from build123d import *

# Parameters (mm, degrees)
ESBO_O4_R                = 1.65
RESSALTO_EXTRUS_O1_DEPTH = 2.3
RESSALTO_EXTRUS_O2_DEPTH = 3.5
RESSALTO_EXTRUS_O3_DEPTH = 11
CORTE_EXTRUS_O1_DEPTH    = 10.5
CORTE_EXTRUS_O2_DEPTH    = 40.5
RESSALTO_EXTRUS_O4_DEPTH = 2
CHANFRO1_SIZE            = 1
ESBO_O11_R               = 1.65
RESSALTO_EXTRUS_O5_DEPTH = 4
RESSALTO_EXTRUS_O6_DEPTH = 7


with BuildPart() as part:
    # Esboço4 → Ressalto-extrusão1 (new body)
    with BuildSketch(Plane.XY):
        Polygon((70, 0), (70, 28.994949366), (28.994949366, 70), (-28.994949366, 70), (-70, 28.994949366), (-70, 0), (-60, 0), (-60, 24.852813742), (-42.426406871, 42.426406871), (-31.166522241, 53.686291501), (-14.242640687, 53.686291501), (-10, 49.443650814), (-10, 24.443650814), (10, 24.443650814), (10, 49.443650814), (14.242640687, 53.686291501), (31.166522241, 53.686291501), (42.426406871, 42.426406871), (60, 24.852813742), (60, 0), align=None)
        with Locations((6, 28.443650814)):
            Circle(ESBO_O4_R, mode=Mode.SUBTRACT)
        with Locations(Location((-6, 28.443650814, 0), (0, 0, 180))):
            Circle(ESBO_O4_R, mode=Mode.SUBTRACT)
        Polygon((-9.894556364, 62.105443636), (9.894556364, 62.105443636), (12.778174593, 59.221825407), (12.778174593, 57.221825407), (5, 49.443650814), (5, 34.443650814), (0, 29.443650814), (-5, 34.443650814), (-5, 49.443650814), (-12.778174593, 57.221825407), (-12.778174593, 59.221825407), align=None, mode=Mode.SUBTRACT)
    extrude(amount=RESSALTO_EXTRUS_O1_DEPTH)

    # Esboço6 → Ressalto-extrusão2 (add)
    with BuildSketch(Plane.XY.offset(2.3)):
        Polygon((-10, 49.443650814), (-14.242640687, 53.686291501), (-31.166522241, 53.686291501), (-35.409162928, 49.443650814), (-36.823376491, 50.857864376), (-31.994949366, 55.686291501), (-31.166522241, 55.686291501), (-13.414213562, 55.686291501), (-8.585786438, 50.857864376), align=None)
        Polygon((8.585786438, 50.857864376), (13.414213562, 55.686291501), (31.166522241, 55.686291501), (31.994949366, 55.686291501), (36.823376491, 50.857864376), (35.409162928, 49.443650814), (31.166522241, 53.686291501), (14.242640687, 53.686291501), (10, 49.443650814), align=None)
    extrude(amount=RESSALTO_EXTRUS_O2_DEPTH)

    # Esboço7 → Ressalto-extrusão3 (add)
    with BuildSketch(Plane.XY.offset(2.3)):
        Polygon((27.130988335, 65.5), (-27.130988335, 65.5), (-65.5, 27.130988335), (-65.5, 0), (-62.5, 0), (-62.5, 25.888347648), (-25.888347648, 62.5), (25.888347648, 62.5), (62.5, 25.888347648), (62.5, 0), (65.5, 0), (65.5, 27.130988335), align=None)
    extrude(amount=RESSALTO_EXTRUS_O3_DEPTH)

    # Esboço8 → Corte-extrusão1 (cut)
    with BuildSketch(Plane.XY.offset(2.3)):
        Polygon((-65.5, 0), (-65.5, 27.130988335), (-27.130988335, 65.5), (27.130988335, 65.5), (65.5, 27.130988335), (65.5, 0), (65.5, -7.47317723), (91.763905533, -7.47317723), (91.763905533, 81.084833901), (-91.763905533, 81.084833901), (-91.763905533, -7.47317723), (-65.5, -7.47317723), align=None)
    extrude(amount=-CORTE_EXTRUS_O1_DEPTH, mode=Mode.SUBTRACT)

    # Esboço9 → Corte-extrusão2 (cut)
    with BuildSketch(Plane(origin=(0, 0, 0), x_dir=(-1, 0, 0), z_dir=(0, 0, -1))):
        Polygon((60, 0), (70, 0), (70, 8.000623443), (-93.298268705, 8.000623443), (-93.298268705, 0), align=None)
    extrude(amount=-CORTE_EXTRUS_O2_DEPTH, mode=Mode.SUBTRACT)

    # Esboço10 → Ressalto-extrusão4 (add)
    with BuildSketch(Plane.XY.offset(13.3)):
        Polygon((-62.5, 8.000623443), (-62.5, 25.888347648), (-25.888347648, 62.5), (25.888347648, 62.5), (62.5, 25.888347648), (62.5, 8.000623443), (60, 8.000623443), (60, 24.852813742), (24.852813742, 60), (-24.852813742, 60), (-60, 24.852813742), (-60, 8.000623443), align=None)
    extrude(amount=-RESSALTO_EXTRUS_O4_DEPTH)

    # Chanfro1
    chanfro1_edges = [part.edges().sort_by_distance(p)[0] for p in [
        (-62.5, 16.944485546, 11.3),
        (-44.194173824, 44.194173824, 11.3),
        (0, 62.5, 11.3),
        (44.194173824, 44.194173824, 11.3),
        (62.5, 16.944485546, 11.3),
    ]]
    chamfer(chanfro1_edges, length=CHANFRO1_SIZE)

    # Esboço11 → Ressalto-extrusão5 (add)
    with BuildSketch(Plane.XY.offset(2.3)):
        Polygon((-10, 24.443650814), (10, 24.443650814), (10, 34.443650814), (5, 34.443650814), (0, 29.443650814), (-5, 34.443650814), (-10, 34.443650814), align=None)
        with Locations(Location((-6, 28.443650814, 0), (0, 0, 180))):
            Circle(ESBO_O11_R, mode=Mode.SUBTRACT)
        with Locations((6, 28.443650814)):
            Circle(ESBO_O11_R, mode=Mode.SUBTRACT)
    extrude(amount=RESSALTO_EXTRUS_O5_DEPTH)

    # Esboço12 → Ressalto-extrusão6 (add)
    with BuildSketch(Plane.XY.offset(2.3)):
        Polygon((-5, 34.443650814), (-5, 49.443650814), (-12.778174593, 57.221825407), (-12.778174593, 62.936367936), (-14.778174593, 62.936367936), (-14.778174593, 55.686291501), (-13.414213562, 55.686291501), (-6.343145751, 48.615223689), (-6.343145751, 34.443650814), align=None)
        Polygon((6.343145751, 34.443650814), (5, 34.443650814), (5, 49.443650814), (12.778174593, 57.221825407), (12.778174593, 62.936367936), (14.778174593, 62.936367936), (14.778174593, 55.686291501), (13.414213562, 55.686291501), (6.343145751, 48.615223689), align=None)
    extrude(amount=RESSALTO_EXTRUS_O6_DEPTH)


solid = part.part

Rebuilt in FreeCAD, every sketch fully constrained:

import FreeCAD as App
import Part
import Sketcher


def edges_at(feature, points):
    """Names of the edges that pass closest to the given points."""
    edges = feature.Shape.Edges
    near = lambda p: min(range(len(edges)), key=lambda i: edges[i].distToShape(Part.Vertex(*p))[0])
    return sorted({f"Edge{near(p) + 1}" for p in points})


def add_polygon(sketch, points):
    """Adds a closed chain of lines whose ends are joined by coincident constraints."""
    first, n = sketch.GeometryCount, len(points)
    for a, b in zip(points, points[1:] + points[:1]):
        sketch.addGeometry(Part.LineSegment(App.Vector(*a, 0), App.Vector(*b, 0)), False)
    for i in range(n):
        sketch.addConstraint(Sketcher.Constraint("Coincident", first + i, 2, first + (i + 1) % n, 1))

doc = App.newDocument("Part")
params = doc.addObject("Spreadsheet::Sheet", "Params")
for row, (alias, value) in enumerate([
    ("sketch1_diameter", "3.3 mm"),
    ("sketch1_width", "10 mm"),
    ("sketch1_width2", "20 mm"),
    ("sketch1_height", "25 mm"),
    ("sketch1_height2", "2 mm"),
    ("pad1_length", "2.3 mm"),
    ("sketch2_length", "6 mm"),
    ("sketch2_length2", "2 mm"),
    ("pad2_length", "3.5 mm"),
    ("sketch3_width", "3 mm"),
    ("pad3_length", "11 mm"),
    ("pocket1_length", "10.5 mm"),
    ("pocket2_length", "40.5 mm"),
    ("sketch6_width", "2.5 mm"),
    ("pad4_length", "2 mm"),
    ("chamfer_size", "1 mm"),
    ("sketch7_diameter", "3.3 mm"),
    ("sketch7_width", "20 mm"),
    ("sketch7_width2", "5 mm"),
    ("sketch7_height", "10 mm"),
    ("pad5_length", "4 mm"),
    ("sketch8_width", "2 mm"),
    ("sketch8_height", "15 mm"),
    ("sketch8_length", "11 mm"),
    ("sketch8_length2", "10 mm"),
    ("pad6_length", "7 mm"),
], start=1):
    params.set(f"A{row}", alias)
    params.set(f"B{row}", "=" + value)
    params.setAlias(f"B{row}", alias)

body = doc.addObject("PartDesign::Body", "Body")

sketch1 = doc.addObject("Sketcher::SketchObject", "Sketch")
body.addObject(sketch1)
sketch1.AttachmentSupport = (doc.XY_Plane, [""])
sketch1.MapMode = "FlatFace"
add_polygon(sketch1, [(70, 0), (70, 28.994949), (28.994949, 70), (-28.994949, 70), (-70, 28.994949), (-70, 0), (-60, 0), (-60, 24.852814), (-31.166522, 53.686292), (-14.242641, 53.686292), (-10, 49.443651), (-10, 24.443651), (10, 24.443651), (10, 49.443651), (14.242641, 53.686292), (31.166522, 53.686292), (60, 24.852814), (60, 0)])
sketch1.addGeometry(Part.Circle(App.Vector(-6, 28.443651, 0), App.Vector(0, 0, 1), 1.65), False)
sketch1.addGeometry(Part.Circle(App.Vector(6, 28.443651, 0), App.Vector(0, 0, 1), 1.65), False)
add_polygon(sketch1, [(-12.778175, 59.221825), (-9.894556, 62.105444), (9.894556, 62.105444), (12.778175, 59.221825), (12.778175, 57.221825), (5, 49.443651), (5, 34.443651), (0, 29.443651), (-5, 34.443651), (-5, 49.443651), (-12.778175, 57.221825)])
sketch1.addConstraint([
    Sketcher.Constraint("Vertical", 0),
    Sketcher.Constraint("Horizontal", 2),
    Sketcher.Constraint("Vertical", 4),
    Sketcher.Constraint("Horizontal", 5),
    Sketcher.Constraint("Vertical", 6),
    Sketcher.Constraint("Horizontal", 8),
    Sketcher.Constraint("Vertical", 10),
    Sketcher.Constraint("Horizontal", 11),
    Sketcher.Constraint("Vertical", 12),
    Sketcher.Constraint("Horizontal", 14),
    Sketcher.Constraint("Vertical", 16),
    Sketcher.Constraint("Horizontal", 17),
    Sketcher.Constraint("Horizontal", 21),
    Sketcher.Constraint("Vertical", 23),
    Sketcher.Constraint("Vertical", 25),
    Sketcher.Constraint("Vertical", 28),
    Sketcher.Constraint("Vertical", 30),
    Sketcher.Constraint("Equal", 18, 19),
    Sketcher.Constraint("Symmetric", 5, 2, 16, 2, -1, 1),
    Sketcher.Constraint("Symmetric", 18, 3, 19, 3, -2),
    Sketcher.Constraint("Symmetric", 0, 2, 3, 2, -2),
    Sketcher.Constraint("Symmetric", 9, 2, 12, 2, -2),
    Sketcher.Constraint("Symmetric", 8, 2, 13, 2, -2),
    Sketcher.Constraint("Symmetric", 25, 2, 27, 2, -2),
    Sketcher.Constraint("Symmetric", 23, 2, 29, 2, -2),
    Sketcher.Constraint("PointOnObject", 4, 2, -1),
    Sketcher.Constraint("PointOnObject", 26, 2, -2),
    Sketcher.Constraint("Perpendicular", 1, 3),
    Sketcher.Constraint("Parallel", 3, 7),
    Sketcher.Constraint("Perpendicular", 7, 9),
    Sketcher.Constraint("Perpendicular", 9, 13),
    Sketcher.Constraint("Perpendicular", 13, 15),
    Sketcher.Constraint("Perpendicular", 15, 20),
    Sketcher.Constraint("Perpendicular", 20, 22),
    Sketcher.Constraint("Perpendicular", 22, 24),
    Sketcher.Constraint("Parallel", 24, 26),
    Sketcher.Constraint("Parallel", 27, 29),
    Sketcher.Constraint("Horizontal", 6, 2, 15, 2),
    Sketcher.Constraint("Horizontal", 12, 2, 24, 2),
    Sketcher.Constraint("Horizontal", 22, 2, 30, 2),
    Sketcher.Constraint("Diameter", 18, 3.3),
    Sketcher.Constraint("DistanceX", 5, 1, 5, 2, 10.0),
    Sketcher.Constraint("DistanceX", 11, 1, 11, 2, 20.0),
    Sketcher.Constraint("DistanceY", 10, 2, 10, 1, 25.0),
    Sketcher.Constraint("DistanceY", 23, 2, 23, 1, 2.0),
    Sketcher.Constraint("DistanceY", 25, 2, 25, 1, 15.0),
    Sketcher.Constraint("Distance", 9, 6.0),
    Sketcher.Constraint("Distance", 24, 11.0),
    Sketcher.Constraint("DistanceX", 18, 3, -1, 1, 6.0),
    Sketcher.Constraint("DistanceX", -1, 1, 0, 2, 70.0),
    Sketcher.Constraint("DistanceY", -1, 1, 1, 2, 70.0),
    Sketcher.Constraint("DistanceX", -1, 1, 24, 2, 5.0),
    Sketcher.Constraint("DistanceY", 18, 3, 9, 2, 21.0),
    Sketcher.Constraint("DistanceX", 2, 2, 2, 1, 57.989899),
    Sketcher.Constraint("DistanceX", 8, 1, 8, 2, 16.923882),
    Sketcher.Constraint("DistanceY", 19, 3, 0, 2, 0.551299),
    Sketcher.Constraint("DistanceX", 21, 1, 21, 2, 19.789113),
])
sketch1.setExpression("Constraints[69]", "Params.sketch1_diameter")
sketch1.setExpression("Constraints[70]", "Params.sketch1_width")
sketch1.setExpression("Constraints[71]", "Params.sketch1_width2")
sketch1.setExpression("Constraints[72]", "Params.sketch1_height")
sketch1.setExpression("Constraints[73]", "Params.sketch1_height2")
pad1 = doc.addObject("PartDesign::Pad", "Pad")
body.addObject(pad1)
pad1.Profile = sketch1
pad1.setExpression("Length", "Params.pad1_length")

sketch2 = doc.addObject("Sketcher::SketchObject", "Sketch001")
body.addObject(sketch2)
sketch2.AttachmentSupport = (doc.XY_Plane, [""])
sketch2.MapMode = "FlatFace"
sketch2.AttachmentOffset = App.Placement(App.Vector(0, 0, 2.3), App.Rotation())
add_polygon(sketch2, [(-14.242641, 53.686292), (-10, 49.443651), (-8.585786, 50.857864), (-13.414214, 55.686292), (-31.994949, 55.686292), (-36.823376, 50.857864), (-35.409163, 49.443651), (-31.166522, 53.686292)])
add_polygon(sketch2, [(13.414214, 55.686292), (8.585786, 50.857864), (10, 49.443651), (14.242641, 53.686292), (31.166522, 53.686292), (35.409163, 49.443651), (36.823376, 50.857864), (31.994949, 55.686292)])
sketch2.addConstraint([
    Sketcher.Constraint("Horizontal", 3),
    Sketcher.Constraint("Horizontal", 7),
    Sketcher.Constraint("Horizontal", 11),
    Sketcher.Constraint("Horizontal", 15),
    Sketcher.Constraint("Symmetric", 1, 2, 8, 2, -2),
    Sketcher.Constraint("Symmetric", 0, 2, 9, 2, -2),
    Sketcher.Constraint("Symmetric", 7, 2, 10, 2, -2),
    Sketcher.Constraint("Symmetric", 5, 2, 12, 2, -2),
    Sketcher.Constraint("Symmetric", 4, 2, 13, 2, -2),
    Sketcher.Constraint("Symmetric", 3, 2, 14, 2, -2),
    Sketcher.Constraint("Perpendicular", 0, 1),
    Sketcher.Constraint("Perpendicular", 1, 2),
    Sketcher.Constraint("Perpendicular", 2, 4),
    Sketcher.Constraint("Perpendicular", 4, 5),
    Sketcher.Constraint("Perpendicular", 5, 6),
    Sketcher.Constraint("Parallel", 6, 8),
    Sketcher.Constraint("Perpendicular", 8, 9),
    Sketcher.Constraint("Perpendicular", 10, 12),
    Sketcher.Constraint("Horizontal", 1, 2, 4, 2),
    Sketcher.Constraint("Horizontal", 0, 2, 5, 2),
    Sketcher.Constraint("Distance", 0, 6.0),
    Sketcher.Constraint("Distance", 1, 2.0),
    Sketcher.Constraint("DistanceX", 0, 2, -1, 1, 10.0),
    Sketcher.Constraint("DistanceY", 6, 2, 3, 2, 2.0),
    Sketcher.Constraint("DistanceX", 7, 1, 7, 2, 16.923882),
    Sketcher.Constraint("DistanceY", -1, 1, 0, 2, 49.443651),
])
sketch2.setExpression("Constraints[36]", "Params.sketch2_length")
sketch2.setExpression("Constraints[37]", "Params.sketch2_length2")
pad2 = doc.addObject("PartDesign::Pad", "Pad001")
body.addObject(pad2)
pad2.Profile = sketch2
pad2.setExpression("Length", "Params.pad2_length")

sketch3 = doc.addObject("Sketcher::SketchObject", "Sketch002")
body.addObject(sketch3)
sketch3.AttachmentSupport = (doc.XY_Plane, [""])
sketch3.MapMode = "FlatFace"
sketch3.AttachmentOffset = App.Placement(App.Vector(0, 0, 2.3), App.Rotation())
add_polygon(sketch3, [(27.130988, 65.5), (-27.130988, 65.5), (-65.5, 27.130988), (-65.5, 0), (-62.5, 0), (-62.5, 25.888348), (-25.888348, 62.5), (25.888348, 62.5), (62.5, 25.888348), (62.5, 0), (65.5, 0), (65.5, 27.130988)])
sketch3.addConstraint([
    Sketcher.Constraint("Horizontal", 0),
    Sketcher.Constraint("Vertical", 2),
    Sketcher.Constraint("Horizontal", 3),
    Sketcher.Constraint("Vertical", 4),
    Sketcher.Constraint("Horizontal", 6),
    Sketcher.Constraint("Vertical", 8),
    Sketcher.Constraint("Horizontal", 9),
    Sketcher.Constraint("Vertical", 10),
    Sketcher.Constraint("Symmetric", 3, 2, 8, 2, -1, 1),
    Sketcher.Constraint("Symmetric", 2, 2, 9, 2, -2),
    Sketcher.Constraint("Parallel", 1, 5),
    Sketcher.Constraint("Perpendicular", 5, 7),
    Sketcher.Constraint("Parallel", 7, 11),
    Sketcher.Constraint("Horizontal", 4, 2, 7, 2),
    Sketcher.Constraint("Horizontal", 1, 2, 10, 2),
    Sketcher.Constraint("Equal", 5, 7),
    Sketcher.Constraint("DistanceX", 3, 1, 3, 2, 3.0),
    Sketcher.Constraint("DistanceY", 5, 2, 0, 2, 3.0),
    Sketcher.Constraint("DistanceX", 4, 2, 7, 2, 125.0),
    Sketcher.Constraint("DistanceY", -1, 1, 0, 2, 65.5),
    Sketcher.Constraint("DistanceY", 2, 2, 2, 1, 27.130988),
    Sketcher.Constraint("DistanceX", 6, 1, 6, 2, 51.776695),
])
sketch3.setExpression("Constraints[28]", "Params.sketch3_width")
pad3 = doc.addObject("PartDesign::Pad", "Pad002")
body.addObject(pad3)
pad3.Profile = sketch3
pad3.setExpression("Length", "Params.pad3_length")

sketch4 = doc.addObject("Sketcher::SketchObject", "Sketch003")
body.addObject(sketch4)
sketch4.AttachmentSupport = (doc.XY_Plane, [""])
sketch4.MapMode = "FlatFace"
sketch4.AttachmentOffset = App.Placement(App.Vector(0, 0, 2.3), App.Rotation())
add_polygon(sketch4, [(-65.5, 27.130988), (-27.130988, 65.5), (27.130988, 65.5), (65.5, 27.130988), (65.5, -7.473177), (91.763906, -7.473177), (91.763906, 81.084834), (-91.763906, 81.084834), (-91.763906, -7.473177), (-65.5, -7.473177)])
sketch4.addConstraint([
    Sketcher.Constraint("Horizontal", 1),
    Sketcher.Constraint("Vertical", 3),
    Sketcher.Constraint("Horizontal", 4),
    Sketcher.Constraint("Vertical", 5),
    Sketcher.Constraint("Horizontal", 6),
    Sketcher.Constraint("Vertical", 7),
    Sketcher.Constraint("Horizontal", 8),
    Sketcher.Constraint("Vertical", 9),
    Sketcher.Constraint("Symmetric", 4, 2, 7, 2, -2),
    Sketcher.Constraint("Symmetric", 2, 2, 9, 2, -2),
    Sketcher.Constraint("Perpendicular", 0, 2),
    Sketcher.Constraint("Equal", 0, 2),
    Sketcher.Constraint("DistanceX", 8, 2, 3, 2, 131.0),
    Sketcher.Constraint("DistanceY", -1, 1, 0, 2, 65.5),
    Sketcher.Constraint("DistanceX", 6, 2, 6, 1, 183.527811),
    Sketcher.Constraint("DistanceY", 5, 1, 5, 2, 88.558011),
    Sketcher.Constraint("DistanceX", 1, 1, 1, 2, 54.261977),
    Sketcher.Constraint("DistanceY", 3, 2, 3, 1, 34.604166),
])
pocket1 = doc.addObject("PartDesign::Pocket", "Pocket")
body.addObject(pocket1)
pocket1.Profile = sketch4
pocket1.setExpression("Length", "Params.pocket1_length")

sketch5 = doc.addObject("Sketcher::SketchObject", "Sketch004")
body.addObject(sketch5)
sketch5.AttachmentSupport = (doc.XY_Plane, [""])
sketch5.MapMode = "FlatFace"
add_polygon(sketch5, [(-70, 0), (-70, 8.000623), (93.298269, 8.000623), (93.298269, 0)])
sketch5.addConstraint([
    Sketcher.Constraint("Vertical", 0),
    Sketcher.Constraint("Horizontal", 1),
    Sketcher.Constraint("Vertical", 2),
    Sketcher.Constraint("Horizontal", 3),
    Sketcher.Constraint("PointOnObject", 2, 2, -1),
    Sketcher.Constraint("DistanceX", 0, 2, -1, 1, 70.0),
    Sketcher.Constraint("DistanceX", 1, 1, 1, 2, 163.298269),
    Sketcher.Constraint("DistanceY", 0, 1, 0, 2, 8.000623),
])
pocket2 = doc.addObject("PartDesign::Pocket", "Pocket001")
body.addObject(pocket2)
pocket2.Profile = sketch5
pocket2.setExpression("Length", "Params.pocket2_length")
pocket2.Reversed = True

sketch6 = doc.addObject("Sketcher::SketchObject", "Sketch005")
body.addObject(sketch6)
sketch6.AttachmentSupport = (doc.XY_Plane, [""])
sketch6.MapMode = "FlatFace"
sketch6.AttachmentOffset = App.Placement(App.Vector(0, 0, 13.3), App.Rotation())
add_polygon(sketch6, [(-62.5, 25.888348), (-62.5, 8.000623), (-60, 8.000623), (-60, 24.852814), (-24.852814, 60), (24.852814, 60), (60, 24.852814), (60, 8.000623), (62.5, 8.000623), (62.5, 25.888348), (25.888348, 62.5), (-25.888348, 62.5)])
sketch6.addConstraint([
    Sketcher.Constraint("Vertical", 0),
    Sketcher.Constraint("Horizontal", 1),
    Sketcher.Constraint("Vertical", 2),
    Sketcher.Constraint("Horizontal", 4),
    Sketcher.Constraint("Vertical", 6),
    Sketcher.Constraint("Horizontal", 7),
    Sketcher.Constraint("Vertical", 8),
    Sketcher.Constraint("Horizontal", 10),
    Sketcher.Constraint("Symmetric", 2, 2, 5, 2, -2),
    Sketcher.Constraint("Symmetric", 0, 2, 7, 2, -2),
    Sketcher.Constraint("Perpendicular", 3, 5),
    Sketcher.Constraint("Parallel", 5, 9),
    Sketcher.Constraint("Perpendicular", 9, 11),
    Sketcher.Constraint("Horizontal", 8, 2, 11, 2),
    Sketcher.Constraint("Equal", 3, 5),
    Sketcher.Constraint("DistanceX", 1, 1, 1, 2, 2.5),
    Sketcher.Constraint("DistanceX", 1, 2, -1, 1, 60.0),
    Sketcher.Constraint("DistanceY", -1, 1, 3, 2, 60.0),
    Sketcher.Constraint("DistanceY", -1, 1, 9, 2, 62.5),
    Sketcher.Constraint("DistanceY", 2, 1, 2, 2, 16.85219),
    Sketcher.Constraint("DistanceX", 4, 1, 4, 2, 49.705627),
    Sketcher.Constraint("DistanceX", 10, 2, 10, 1, 51.776695),
])
sketch6.setExpression("Constraints[27]", "Params.sketch6_width")
pad4 = doc.addObject("PartDesign::Pad", "Pad003")
body.addObject(pad4)
pad4.Profile = sketch6
pad4.setExpression("Length", "Params.pad4_length")
pad4.Reversed = True
doc.recompute()

chamfer = doc.addObject("PartDesign::Chamfer", "Chamfer")
body.addObject(chamfer)
chamfer.Base = (pad4, edges_at(pad4, [
    (-62.5, 16.944, 11.3),
    (-44.194, 44.194, 11.3),
    (0, 62.5, 11.3),
    (44.194, 44.194, 11.3),
    (62.5, 16.944, 11.3),
]))
chamfer.setExpression("Size", "Params.chamfer_size")

sketch7 = doc.addObject("Sketcher::SketchObject", "Sketch006")
body.addObject(sketch7)
sketch7.AttachmentSupport = (doc.XY_Plane, [""])
sketch7.MapMode = "FlatFace"
sketch7.AttachmentOffset = App.Placement(App.Vector(0, 0, 2.3), App.Rotation())
add_polygon(sketch7, [(-10, 24.443651), (10, 24.443651), (10, 34.443651), (5, 34.443651), (0, 29.443651), (-5, 34.443651), (-10, 34.443651)])
sketch7.addGeometry(Part.Circle(App.Vector(-6, 28.443651, 0), App.Vector(0, 0, 1), 1.65), False)
sketch7.addGeometry(Part.Circle(App.Vector(6, 28.443651, 0), App.Vector(0, 0, 1), 1.65), False)
sketch7.addConstraint([
    Sketcher.Constraint("Horizontal", 0),
    Sketcher.Constraint("Vertical", 1),
    Sketcher.Constraint("Horizontal", 2),
    Sketcher.Constraint("Horizontal", 5),
    Sketcher.Constraint("Vertical", 6),
    Sketcher.Constraint("Equal", 7, 8),
    Sketcher.Constraint("Symmetric", 7, 3, 8, 3, -2),
    Sketcher.Constraint("Symmetric", 2, 2, 4, 2, -2),
    Sketcher.Constraint("PointOnObject", 3, 2, -2),
    Sketcher.Constraint("Perpendicular", 3, 4),
    Sketcher.Constraint("Equal", 2, 5),
    Sketcher.Constraint("Diameter", 7, 3.3),
    Sketcher.Constraint("DistanceX", 0, 1, 0, 2, 20.0),
    Sketcher.Constraint("DistanceX", 2, 2, 2, 1, 5.0),
    Sketcher.Constraint("DistanceY", 1, 1, 1, 2, 10.0),
    Sketcher.Constraint("DistanceX", 7, 3, -1, 1, 6.0),
    Sketcher.Constraint("DistanceY", 0, 2, 8, 3, 4.0),
    Sketcher.Constraint("DistanceY", -1, 1, 7, 3, 28.443651),
])
sketch7.setExpression("Constraints[18]", "Params.sketch7_diameter")
sketch7.setExpression("Constraints[19]", "Params.sketch7_width")
sketch7.setExpression("Constraints[20]", "Params.sketch7_width2")
sketch7.setExpression("Constraints[21]", "Params.sketch7_height")
pad5 = doc.addObject("PartDesign::Pad", "Pad004")
body.addObject(pad5)
pad5.Profile = sketch7
pad5.setExpression("Length", "Params.pad5_length")

sketch8 = doc.addObject("Sketcher::SketchObject", "Sketch007")
body.addObject(sketch8)
sketch8.AttachmentSupport = (doc.XY_Plane, [""])
sketch8.MapMode = "FlatFace"
sketch8.AttachmentOffset = App.Placement(App.Vector(0, 0, 2.3), App.Rotation())
add_polygon(sketch8, [(-5, 34.443651), (-5, 49.443651), (-12.778175, 57.221825), (-12.778175, 62.936368), (-14.778175, 62.936368), (-14.778175, 55.686292), (-13.414214, 55.686292), (-6.343146, 48.615224), (-6.343146, 34.443651)])
add_polygon(sketch8, [(5, 34.443651), (6.343146, 34.443651), (6.343146, 48.615224), (13.414214, 55.686292), (14.778175, 55.686292), (14.778175, 62.936368), (12.778175, 62.936368), (12.778175, 57.221825), (5, 49.443651)])
sketch8.addConstraint([
    Sketcher.Constraint("Vertical", 0),
    Sketcher.Constraint("Vertical", 2),
    Sketcher.Constraint("Horizontal", 3),
    Sketcher.Constraint("Vertical", 4),
    Sketcher.Constraint("Horizontal", 5),
    Sketcher.Constraint("Vertical", 7),
    Sketcher.Constraint("Horizontal", 8),
    Sketcher.Constraint("Horizontal", 9),
    Sketcher.Constraint("Vertical", 10),
    Sketcher.Constraint("Horizontal", 12),
    Sketcher.Constraint("Vertical", 13),
    Sketcher.Constraint("Horizontal", 14),
    Sketcher.Constraint("Vertical", 15),
    Sketcher.Constraint("Vertical", 17),
    Sketcher.Constraint("Symmetric", 7, 2, 9, 2, -2),
    Sketcher.Constraint("Symmetric", 5, 2, 11, 2, -2),
    Sketcher.Constraint("Symmetric", 3, 2, 13, 2, -2),
    Sketcher.Constraint("Symmetric", 1, 2, 15, 2, -2),
    Sketcher.Constraint("Symmetric", 0, 2, 16, 2, -2),
    Sketcher.Constraint("Parallel", 1, 6),
    Sketcher.Constraint("Perpendicular", 6, 11),
    Sketcher.Constraint("Parallel", 11, 16),
    Sketcher.Constraint("DistanceX", 3, 2, 3, 1, 2.0),
    Sketcher.Constraint("DistanceY", 0, 1, 0, 2, 15.0),
    Sketcher.Constraint("Distance", 1, 11.0),
    Sketcher.Constraint("Distance", 6, 10.0),
    Sketcher.Constraint("DistanceX", 0, 2, -1, 1, 5.0),
    Sketcher.Constraint("DistanceX", 5, 1, 5, 2, 1.363961),
    Sketcher.Constraint("DistanceY", 6, 2, 1, 2, 8.606602),
    Sketcher.Constraint("DistanceY", 2, 1, 2, 2, 5.714543),
    Sketcher.Constraint("DistanceY", -1, 1, 0, 2, 49.443651),
])
sketch8.setExpression("Constraints[40]", "Params.sketch8_width")
sketch8.setExpression("Constraints[41]", "Params.sketch8_height")
sketch8.setExpression("Constraints[42]", "Params.sketch8_length")
sketch8.setExpression("Constraints[43]", "Params.sketch8_length2")
pad6 = doc.addObject("PartDesign::Pad", "Pad005")
body.addObject(pad6)
pad6.Profile = sketch8
pad6.setExpression("Length", "Params.pad6_length")

doc.recompute()
